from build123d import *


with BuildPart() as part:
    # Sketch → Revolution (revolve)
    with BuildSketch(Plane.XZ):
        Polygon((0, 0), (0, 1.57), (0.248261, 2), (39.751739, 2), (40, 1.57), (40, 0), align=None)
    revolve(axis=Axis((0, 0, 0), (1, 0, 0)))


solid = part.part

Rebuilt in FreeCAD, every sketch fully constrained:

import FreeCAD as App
import Part
import Sketcher


def add_polygon(sketch, points):
    """Adds a closed chain of lines whose ends are joined by coincident constraints."""
    first, n = sketch.GeometryCount, len(points)
    for a, b in zip(points, points[1:] + points[:1]):
        sketch.addGeometry(Part.LineSegment(App.Vector(*a, 0), App.Vector(*b, 0)), False)
    for i in range(n):
        sketch.addConstraint(Sketcher.Constraint("Coincident", first + i, 2, first + (i + 1) % n, 1))

doc = App.newDocument("Part")
body = doc.addObject("PartDesign::Body", "Body")

sketch1 = body.newObject("Sketcher::SketchObject", "Sketch")
sketch1.AttachmentSupport = (doc.getObject("XZ_Plane"), [""])
sketch1.MapMode = "FlatFace"
add_polygon(sketch1, [(0, 1.57), (0, 0), (40, 0), (40, 1.57), (39.75, 2), (0.25, 2)])
sketch1.addConstraint([
    Sketcher.Constraint("Vertical", 0),
    Sketcher.Constraint("Horizontal", 1),
    Sketcher.Constraint("Vertical", 2),
    Sketcher.Constraint("Horizontal", 4),
    Sketcher.Constraint("Coincident", 0, 2, -1, 1),
    Sketcher.Constraint("Horizontal", 2, 2, 5, 2),
    Sketcher.Constraint("Equal", 3, 5),
    Sketcher.Constraint("DistanceX", 1, 1, 1, 2, 40.0),
    Sketcher.Constraint("DistanceY", -1, 1, 3, 2, 2.0),
    Sketcher.Constraint("DistanceY", 0, 2, 0, 1, 1.57),
    Sketcher.Constraint("Distance", 3, 0.496521),
])
revolution = body.newObject("PartDesign::Revolution", "Revolution")
revolution.Profile = sketch1
revolution.ReferenceAxis = (sketch1, ["H_Axis"])
revolution.Angle = 360

doc.recompute()
